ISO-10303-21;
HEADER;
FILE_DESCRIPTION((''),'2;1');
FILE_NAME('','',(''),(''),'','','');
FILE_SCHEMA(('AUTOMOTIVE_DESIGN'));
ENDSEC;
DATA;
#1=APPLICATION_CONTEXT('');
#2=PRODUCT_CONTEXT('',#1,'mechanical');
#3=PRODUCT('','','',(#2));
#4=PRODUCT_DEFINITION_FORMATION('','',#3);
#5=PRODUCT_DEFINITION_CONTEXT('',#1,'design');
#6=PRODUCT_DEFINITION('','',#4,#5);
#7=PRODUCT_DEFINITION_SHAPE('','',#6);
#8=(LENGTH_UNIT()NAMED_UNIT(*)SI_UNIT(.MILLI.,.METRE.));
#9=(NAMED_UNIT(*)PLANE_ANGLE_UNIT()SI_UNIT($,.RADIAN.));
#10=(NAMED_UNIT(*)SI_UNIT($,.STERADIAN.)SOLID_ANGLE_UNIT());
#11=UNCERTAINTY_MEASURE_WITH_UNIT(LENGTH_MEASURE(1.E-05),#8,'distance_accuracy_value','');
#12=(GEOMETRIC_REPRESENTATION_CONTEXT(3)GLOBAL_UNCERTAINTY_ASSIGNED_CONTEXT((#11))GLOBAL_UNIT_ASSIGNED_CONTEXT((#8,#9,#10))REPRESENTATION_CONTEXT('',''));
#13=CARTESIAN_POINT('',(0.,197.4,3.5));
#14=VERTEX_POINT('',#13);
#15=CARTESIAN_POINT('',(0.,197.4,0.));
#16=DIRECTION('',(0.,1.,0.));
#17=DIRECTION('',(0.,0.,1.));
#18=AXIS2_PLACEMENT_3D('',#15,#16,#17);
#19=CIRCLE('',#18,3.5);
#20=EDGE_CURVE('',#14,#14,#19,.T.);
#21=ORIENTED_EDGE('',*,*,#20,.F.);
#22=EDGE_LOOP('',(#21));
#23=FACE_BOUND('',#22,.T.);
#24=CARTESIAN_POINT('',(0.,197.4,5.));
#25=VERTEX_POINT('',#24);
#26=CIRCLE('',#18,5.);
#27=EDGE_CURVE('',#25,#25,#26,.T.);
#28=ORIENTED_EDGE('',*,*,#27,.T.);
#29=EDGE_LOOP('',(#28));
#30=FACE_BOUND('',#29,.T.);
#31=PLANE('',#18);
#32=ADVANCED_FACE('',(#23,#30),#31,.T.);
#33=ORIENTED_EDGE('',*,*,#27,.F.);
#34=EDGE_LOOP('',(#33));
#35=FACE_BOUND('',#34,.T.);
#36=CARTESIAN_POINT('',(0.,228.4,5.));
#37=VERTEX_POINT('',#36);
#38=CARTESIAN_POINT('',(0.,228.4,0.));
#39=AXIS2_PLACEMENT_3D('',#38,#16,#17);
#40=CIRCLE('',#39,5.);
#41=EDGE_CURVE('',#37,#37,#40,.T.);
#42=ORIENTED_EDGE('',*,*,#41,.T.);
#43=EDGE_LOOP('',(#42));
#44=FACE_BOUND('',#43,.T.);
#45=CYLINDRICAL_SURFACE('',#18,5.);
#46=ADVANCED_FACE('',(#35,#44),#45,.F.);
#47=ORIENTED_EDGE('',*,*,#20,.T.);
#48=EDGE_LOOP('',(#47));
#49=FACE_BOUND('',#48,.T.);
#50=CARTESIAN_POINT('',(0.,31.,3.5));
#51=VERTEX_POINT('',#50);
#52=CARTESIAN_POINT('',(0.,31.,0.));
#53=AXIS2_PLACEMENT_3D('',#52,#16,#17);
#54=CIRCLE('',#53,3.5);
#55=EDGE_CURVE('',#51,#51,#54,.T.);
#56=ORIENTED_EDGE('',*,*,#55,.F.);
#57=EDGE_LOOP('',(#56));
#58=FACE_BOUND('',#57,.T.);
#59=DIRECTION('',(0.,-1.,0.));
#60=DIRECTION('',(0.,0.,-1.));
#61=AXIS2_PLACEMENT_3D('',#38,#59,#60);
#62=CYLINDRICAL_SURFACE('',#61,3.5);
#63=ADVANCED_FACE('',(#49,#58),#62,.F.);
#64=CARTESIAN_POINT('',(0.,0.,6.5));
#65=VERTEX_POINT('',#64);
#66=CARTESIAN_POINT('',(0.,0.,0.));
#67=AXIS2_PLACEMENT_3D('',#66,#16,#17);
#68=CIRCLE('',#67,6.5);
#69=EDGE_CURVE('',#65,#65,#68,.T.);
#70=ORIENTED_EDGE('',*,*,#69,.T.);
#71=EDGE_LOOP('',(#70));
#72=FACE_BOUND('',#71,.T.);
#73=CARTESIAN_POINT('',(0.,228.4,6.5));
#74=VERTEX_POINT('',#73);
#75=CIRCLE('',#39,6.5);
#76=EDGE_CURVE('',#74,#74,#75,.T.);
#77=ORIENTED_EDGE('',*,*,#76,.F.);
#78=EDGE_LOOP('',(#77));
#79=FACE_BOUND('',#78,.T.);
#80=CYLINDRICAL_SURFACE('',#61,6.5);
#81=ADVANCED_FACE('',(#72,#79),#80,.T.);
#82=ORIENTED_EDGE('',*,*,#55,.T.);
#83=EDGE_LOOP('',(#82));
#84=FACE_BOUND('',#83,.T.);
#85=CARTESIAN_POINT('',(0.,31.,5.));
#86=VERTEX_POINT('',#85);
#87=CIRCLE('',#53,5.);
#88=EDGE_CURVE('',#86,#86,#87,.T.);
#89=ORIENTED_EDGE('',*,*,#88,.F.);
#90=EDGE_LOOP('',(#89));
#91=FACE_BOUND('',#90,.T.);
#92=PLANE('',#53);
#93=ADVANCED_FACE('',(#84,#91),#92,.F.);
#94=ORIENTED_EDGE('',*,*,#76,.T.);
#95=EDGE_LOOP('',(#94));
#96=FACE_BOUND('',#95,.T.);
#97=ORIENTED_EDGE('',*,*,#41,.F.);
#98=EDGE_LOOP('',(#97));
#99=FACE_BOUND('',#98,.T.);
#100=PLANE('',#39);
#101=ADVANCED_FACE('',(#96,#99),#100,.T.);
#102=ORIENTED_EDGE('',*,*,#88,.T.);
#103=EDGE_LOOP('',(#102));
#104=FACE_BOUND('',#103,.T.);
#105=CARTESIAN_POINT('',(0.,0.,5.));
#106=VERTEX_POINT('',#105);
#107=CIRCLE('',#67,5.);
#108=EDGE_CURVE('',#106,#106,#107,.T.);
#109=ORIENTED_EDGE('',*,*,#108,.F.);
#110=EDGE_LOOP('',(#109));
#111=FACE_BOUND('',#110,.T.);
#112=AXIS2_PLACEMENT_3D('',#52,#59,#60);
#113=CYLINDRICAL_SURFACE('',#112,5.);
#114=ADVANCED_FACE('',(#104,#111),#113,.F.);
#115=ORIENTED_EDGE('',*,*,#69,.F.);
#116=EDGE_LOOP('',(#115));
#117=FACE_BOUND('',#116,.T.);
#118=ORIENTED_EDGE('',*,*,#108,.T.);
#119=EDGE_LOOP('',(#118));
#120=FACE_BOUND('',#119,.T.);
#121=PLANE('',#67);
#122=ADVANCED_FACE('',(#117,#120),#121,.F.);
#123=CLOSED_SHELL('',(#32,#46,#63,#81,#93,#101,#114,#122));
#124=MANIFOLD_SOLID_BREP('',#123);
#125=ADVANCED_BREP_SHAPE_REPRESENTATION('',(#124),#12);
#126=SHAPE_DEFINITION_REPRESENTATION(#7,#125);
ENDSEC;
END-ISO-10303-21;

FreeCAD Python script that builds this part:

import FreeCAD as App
import Part
import Sketcher
from FreeCAD import Vector

doc = App.newDocument("Part")
body = doc.addObject("PartDesign::Body", "Body")

# Sketch on XZ plane
sketch1 = body.newObject("Sketcher::SketchObject", "Sketch")
sketch1.AttachmentSupport = (doc.getObject("XZ_Plane"), [""])
sketch1.MapMode = "FlatFace"
sketch1.addGeometry([
    Part.Circle(Vector(0, 0, 0), Vector(0, 0, 1), 6.5),
    Part.Circle(Vector(0, 0, 0), Vector(0, 0, 1), 3.5),
], False)
sketch1.addConstraint([
    Sketcher.Constraint("Coincident", 0, 3, -1, 1),
    Sketcher.Constraint("Coincident", 1, 3, -1, 1),
    Sketcher.Constraint("Diameter", 0, 13.0),
    Sketcher.Constraint("Diameter", 1, 7.0),
])
pad1 = body.newObject("PartDesign::Pad", "Pad")
pad1.Profile = sketch1
pad1.Length = 228.4
pad1.Reversed = True

# Sketch on XZ plane
sketch2 = body.newObject("Sketcher::SketchObject", "Sketch001")
sketch2.AttachmentSupport = (doc.getObject("XZ_Plane"), [""])
sketch2.MapMode = "FlatFace"
sketch2.AttachmentOffset = App.Placement(Vector(0, 0, -228.4), App.Rotation())
sketch2.addGeometry(Part.Circle(Vector(0, 0, 0), Vector(0, 0, 1), 5), False)
sketch2.addConstraint([
    Sketcher.Constraint("Coincident", 0, 3, -1, 1),
    Sketcher.Constraint("Diameter", 0, 10.0),
])
pocket1 = body.newObject("PartDesign::Pocket", "Pocket")
pocket1.Profile = sketch2
pocket1.Length = 31
pocket1.Reversed = True

# Sketch on XZ plane
sketch3 = body.newObject("Sketcher::SketchObject", "Sketch002")
sketch3.AttachmentSupport = (doc.getObject("XZ_Plane"), [""])
sketch3.MapMode = "FlatFace"
sketch3.AttachmentOffset = App.Placement(Vector(0, 0, -31), App.Rotation())
sketch3.addGeometry(Part.Circle(Vector(0, 0, 0), Vector(0, 0, 1), 5), False)
sketch3.addConstraint([
    Sketcher.Constraint("Coincident", 0, 3, -1, 1),
    Sketcher.Constraint("Diameter", 0, 10.0),
])
pocket2 = body.newObject("PartDesign::Pocket", "Pocket001")
pocket2.Profile = sketch3
pocket2.Length = 31
pocket2.Reversed = True

doc.recompute()
